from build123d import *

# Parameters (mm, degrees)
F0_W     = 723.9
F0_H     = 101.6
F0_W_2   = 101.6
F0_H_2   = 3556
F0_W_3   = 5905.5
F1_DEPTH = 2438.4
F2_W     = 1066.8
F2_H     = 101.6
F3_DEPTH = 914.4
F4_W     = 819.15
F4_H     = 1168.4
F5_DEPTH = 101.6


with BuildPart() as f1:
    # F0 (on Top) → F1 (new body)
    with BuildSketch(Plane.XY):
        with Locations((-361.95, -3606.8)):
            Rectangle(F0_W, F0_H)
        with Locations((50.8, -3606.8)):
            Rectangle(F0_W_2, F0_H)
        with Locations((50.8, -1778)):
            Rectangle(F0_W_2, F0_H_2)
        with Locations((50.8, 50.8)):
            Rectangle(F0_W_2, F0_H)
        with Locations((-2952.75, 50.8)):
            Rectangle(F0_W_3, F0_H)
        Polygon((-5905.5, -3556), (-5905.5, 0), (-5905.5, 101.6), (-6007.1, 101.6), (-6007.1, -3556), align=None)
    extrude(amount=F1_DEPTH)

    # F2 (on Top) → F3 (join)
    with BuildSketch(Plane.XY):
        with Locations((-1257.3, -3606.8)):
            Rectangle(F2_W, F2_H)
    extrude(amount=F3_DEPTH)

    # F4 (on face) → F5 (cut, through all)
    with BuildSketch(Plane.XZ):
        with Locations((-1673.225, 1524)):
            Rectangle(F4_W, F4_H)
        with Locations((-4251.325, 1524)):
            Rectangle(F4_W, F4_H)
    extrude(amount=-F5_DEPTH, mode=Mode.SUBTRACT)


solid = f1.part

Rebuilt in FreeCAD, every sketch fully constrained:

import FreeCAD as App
import Part
import Sketcher
from FreeCAD import Vector
Q = App.Units.Quantity

doc = App.newDocument("Part")
body = doc.addObject("PartDesign::Body", "Body")

# Sketch on XY plane
sketch1 = doc.addObject("Sketcher::SketchObject", "Sketch")
body.addObject(sketch1)
sketch1.AttachmentSupport = (doc.XY_Plane, [""])
sketch1.MapMode = "FlatFace"
sketch1.addGeometry(Part.LineSegment(Vector(-724, -3556, 0), Vector(-724, -3658, 0)), False)
sketch1.addGeometry(Part.LineSegment(Vector(-724, -3658, 0), Vector(102, -3658, 0)), False)
sketch1.addGeometry(Part.LineSegment(Vector(102, -3658, 0), Vector(102, 102, 0)), False)
sketch1.addGeometry(Part.LineSegment(Vector(102, 102, 0), Vector(-6007, 102, 0)), False)
sketch1.addGeometry(Part.LineSegment(Vector(-6007, 102, 0), Vector(-6007, -3556, 0)), False)
sketch1.addGeometry(Part.LineSegment(Vector(-6007, -3556, 0), Vector(-5906, -3556, 0)), False)
sketch1.addGeometry(Part.LineSegment(Vector(-5906, -3556, 0), Vector(-5906, 0, 0)), False)
sketch1.addGeometry(Part.LineSegment(Vector(-5906, 0, 0), Vector(0, 0, 0)), False)
sketch1.addGeometry(Part.LineSegment(Vector(0, 0, 0), Vector(0, -3556, 0)), False)
sketch1.addGeometry(Part.LineSegment(Vector(0, -3556, 0), Vector(-724, -3556, 0)), False)
sketch1.addConstraint(Sketcher.Constraint("Coincident", 0, 2, 1, 1))
sketch1.addConstraint(Sketcher.Constraint("Coincident", 1, 2, 2, 1))
sketch1.addConstraint(Sketcher.Constraint("Coincident", 2, 2, 3, 1))
sketch1.addConstraint(Sketcher.Constraint("Coincident", 3, 2, 4, 1))
sketch1.addConstraint(Sketcher.Constraint("Coincident", 4, 2, 5, 1))
sketch1.addConstraint(Sketcher.Constraint("Coincident", 5, 2, 6, 1))
sketch1.addConstraint(Sketcher.Constraint("Coincident", 6, 2, 7, 1))
sketch1.addConstraint(Sketcher.Constraint("Coincident", 7, 2, 8, 1))
sketch1.addConstraint(Sketcher.Constraint("Coincident", 8, 2, 9, 1))
sketch1.addConstraint(Sketcher.Constraint("Coincident", 9, 2, 0, 1))
sketch1.addConstraint(Sketcher.Constraint("Vertical", 0))
sketch1.addConstraint(Sketcher.Constraint("Horizontal", 1))
sketch1.addConstraint(Sketcher.Constraint("Vertical", 2))
sketch1.addConstraint(Sketcher.Constraint("Horizontal", 3))
sketch1.addConstraint(Sketcher.Constraint("Vertical", 4))
sketch1.addConstraint(Sketcher.Constraint("Horizontal", 5))
sketch1.addConstraint(Sketcher.Constraint("Vertical", 6))
sketch1.addConstraint(Sketcher.Constraint("Horizontal", 7))
sketch1.addConstraint(Sketcher.Constraint("Vertical", 8))
sketch1.addConstraint(Sketcher.Constraint("Horizontal", 9))
sketch1.addConstraint(Sketcher.Constraint("Coincident", 7, 2, -1, 1))
sketch1.addConstraint(Sketcher.Constraint("Horizontal", 5, 2, 8, 2))
sketch1.addConstraint(Sketcher.Constraint("Equal", 5, 0))
sketch1.addConstraint(Sketcher.Constraint("DistanceX", 5, 1, 5, 2, Q("4 in")))
sketch1.addConstraint(Sketcher.Constraint("DistanceY", 2, 1, 2, 2, Q("148 in")))
sketch1.addConstraint(Sketcher.Constraint("DistanceY", 6, 1, 6, 2, Q("140 in")))
sketch1.addConstraint(Sketcher.Constraint("DistanceX", 1, 1, 1, 2, Q("32.5 in")))
sketch1.addConstraint(Sketcher.Constraint("DistanceX", 3, 2, 3, 1, Q("240.5 in")))
sketch1.addConstraint(Sketcher.Constraint("DistanceX", 7, 1, 7, 2, Q("232.5 in")))
pad1 = doc.addObject("PartDesign::Pad", "Pad")
body.addObject(pad1)
pad1.Profile = sketch1
pad1.Length = Q("96 in")

# Sketch on XY plane
sketch2 = doc.addObject("Sketcher::SketchObject", "Sketch001")
body.addObject(sketch2)
sketch2.AttachmentSupport = (doc.XY_Plane, [""])
sketch2.MapMode = "FlatFace"
sketch2.addGeometry(Part.LineSegment(Vector(-1791, -3556, 0), Vector(-1791, -3658, 0)), False)
sketch2.addGeometry(Part.LineSegment(Vector(-1791, -3658, 0), Vector(-724, -3658, 0)), False)
sketch2.addGeometry(Part.LineSegment(Vector(-724, -3658, 0), Vector(-724, -3556, 0)), False)
sketch2.addGeometry(Part.LineSegment(Vector(-724, -3556, 0), Vector(-1791, -3556, 0)), False)
sketch2.addConstraint(Sketcher.Constraint("Coincident", 0, 2, 1, 1))
sketch2.addConstraint(Sketcher.Constraint("Coincident", 1, 2, 2, 1))
sketch2.addConstraint(Sketcher.Constraint("Coincident", 2, 2, 3, 1))
sketch2.addConstraint(Sketcher.Constraint("Coincident", 3, 2, 0, 1))
sketch2.addConstraint(Sketcher.Constraint("Vertical", 0))
sketch2.addConstraint(Sketcher.Constraint("Horizontal", 1))
sketch2.addConstraint(Sketcher.Constraint("Vertical", 2))
sketch2.addConstraint(Sketcher.Constraint("Horizontal", 3))
sketch2.addConstraint(Sketcher.Constraint("DistanceX", 1, 1, 1, 2, Q("42 in")))
sketch2.addConstraint(Sketcher.Constraint("DistanceY", 0, 2, 0, 1, Q("4 in")))
sketch2.addConstraint(Sketcher.Constraint("DistanceY", 0, 2, -1, 1, Q("144 in")))
sketch2.addConstraint(Sketcher.Constraint("DistanceX", 0, 2, -1, 1, Q("70.5 in")))
pad2 = doc.addObject("PartDesign::Pad", "Pad001")
body.addObject(pad2)
pad2.Profile = sketch2
pad2.Length = Q("36 in")

# Sketch on XZ plane
sketch3 = doc.addObject("Sketcher::SketchObject", "Sketch002")
body.addObject(sketch3)
sketch3.AttachmentSupport = (doc.XZ_Plane, [""])
sketch3.MapMode = "FlatFace"
sketch3.addGeometry(Part.LineSegment(Vector(-2083, 2108, 0), Vector(-2083, 940, 0)), False)
sketch3.addGeometry(Part.LineSegment(Vector(-2083, 940, 0), Vector(-1264, 940, 0)), False)
sketch3.addGeometry(Part.LineSegment(Vector(-1264, 940, 0), Vector(-1264, 2108, 0)), False)
sketch3.addGeometry(Part.LineSegment(Vector(-1264, 2108, 0), Vector(-2083, 2108, 0)), False)
sketch3.addGeometry(Part.LineSegment(Vector(-4661, 2108, 0), Vector(-4661, 940, 0)), False)
sketch3.addGeometry(Part.LineSegment(Vector(-4661, 940, 0), Vector(-3842, 940, 0)), False)
sketch3.addGeometry(Part.LineSegment(Vector(-3842, 940, 0), Vector(-3842, 2108, 0)), False)
sketch3.addGeometry(Part.LineSegment(Vector(-3842, 2108, 0), Vector(-4661, 2108, 0)), False)
sketch3.addConstraint(Sketcher.Constraint("Coincident", 0, 2, 1, 1))
sketch3.addConstraint(Sketcher.Constraint("Coincident", 1, 2, 2, 1))
sketch3.addConstraint(Sketcher.Constraint("Coincident", 2, 2, 3, 1))
sketch3.addConstraint(Sketcher.Constraint("Coincident", 3, 2, 0, 1))
sketch3.addConstraint(Sketcher.Constraint("Coincident", 4, 2, 5, 1))
sketch3.addConstraint(Sketcher.Constraint("Coincident", 5, 2, 6, 1))
sketch3.addConstraint(Sketcher.Constraint("Coincident", 6, 2, 7, 1))
sketch3.addConstraint(Sketcher.Constraint("Coincident", 7, 2, 4, 1))
sketch3.addConstraint(Sketcher.Constraint("Vertical", 0))
sketch3.addConstraint(Sketcher.Constraint("Horizontal", 1))
sketch3.addConstraint(Sketcher.Constraint("Vertical", 2))
sketch3.addConstraint(Sketcher.Constraint("Horizontal", 3))
sketch3.addConstraint(Sketcher.Constraint("Vertical", 4))
sketch3.addConstraint(Sketcher.Constraint("Horizontal", 5))
sketch3.addConstraint(Sketcher.Constraint("Vertical", 6))
sketch3.addConstraint(Sketcher.Constraint("Horizontal", 7))
sketch3.addConstraint(Sketcher.Constraint("Horizontal", 1, 2, 4, 2))
sketch3.addConstraint(Sketcher.Constraint("Horizontal", 3, 2, 6, 2))
sketch3.addConstraint(Sketcher.Constraint("Equal", 3, 5))
sketch3.addConstraint(Sketcher.Constraint("DistanceY", 0, 2, 0, 1, Q("46 in")))
sketch3.addConstraint(Sketcher.Constraint("DistanceX", 0, 2, -1, 1, Q("82 in")))
sketch3.addConstraint(Sketcher.Constraint("DistanceY", -1, 1, 0, 2, Q("37 in")))
sketch3.addConstraint(Sketcher.Constraint("DistanceX", 1, 1, 1, 2, Q("32.25 in")))
sketch3.addConstraint(Sketcher.Constraint("DistanceX", 4, 2, -1, 1, Q("183.5 in")))
pocket1 = doc.addObject("PartDesign::Pocket", "Pocket")
body.addObject(pocket1)
pocket1.Profile = sketch3
pocket1.Type = "ThroughAll"

doc.recompute()
